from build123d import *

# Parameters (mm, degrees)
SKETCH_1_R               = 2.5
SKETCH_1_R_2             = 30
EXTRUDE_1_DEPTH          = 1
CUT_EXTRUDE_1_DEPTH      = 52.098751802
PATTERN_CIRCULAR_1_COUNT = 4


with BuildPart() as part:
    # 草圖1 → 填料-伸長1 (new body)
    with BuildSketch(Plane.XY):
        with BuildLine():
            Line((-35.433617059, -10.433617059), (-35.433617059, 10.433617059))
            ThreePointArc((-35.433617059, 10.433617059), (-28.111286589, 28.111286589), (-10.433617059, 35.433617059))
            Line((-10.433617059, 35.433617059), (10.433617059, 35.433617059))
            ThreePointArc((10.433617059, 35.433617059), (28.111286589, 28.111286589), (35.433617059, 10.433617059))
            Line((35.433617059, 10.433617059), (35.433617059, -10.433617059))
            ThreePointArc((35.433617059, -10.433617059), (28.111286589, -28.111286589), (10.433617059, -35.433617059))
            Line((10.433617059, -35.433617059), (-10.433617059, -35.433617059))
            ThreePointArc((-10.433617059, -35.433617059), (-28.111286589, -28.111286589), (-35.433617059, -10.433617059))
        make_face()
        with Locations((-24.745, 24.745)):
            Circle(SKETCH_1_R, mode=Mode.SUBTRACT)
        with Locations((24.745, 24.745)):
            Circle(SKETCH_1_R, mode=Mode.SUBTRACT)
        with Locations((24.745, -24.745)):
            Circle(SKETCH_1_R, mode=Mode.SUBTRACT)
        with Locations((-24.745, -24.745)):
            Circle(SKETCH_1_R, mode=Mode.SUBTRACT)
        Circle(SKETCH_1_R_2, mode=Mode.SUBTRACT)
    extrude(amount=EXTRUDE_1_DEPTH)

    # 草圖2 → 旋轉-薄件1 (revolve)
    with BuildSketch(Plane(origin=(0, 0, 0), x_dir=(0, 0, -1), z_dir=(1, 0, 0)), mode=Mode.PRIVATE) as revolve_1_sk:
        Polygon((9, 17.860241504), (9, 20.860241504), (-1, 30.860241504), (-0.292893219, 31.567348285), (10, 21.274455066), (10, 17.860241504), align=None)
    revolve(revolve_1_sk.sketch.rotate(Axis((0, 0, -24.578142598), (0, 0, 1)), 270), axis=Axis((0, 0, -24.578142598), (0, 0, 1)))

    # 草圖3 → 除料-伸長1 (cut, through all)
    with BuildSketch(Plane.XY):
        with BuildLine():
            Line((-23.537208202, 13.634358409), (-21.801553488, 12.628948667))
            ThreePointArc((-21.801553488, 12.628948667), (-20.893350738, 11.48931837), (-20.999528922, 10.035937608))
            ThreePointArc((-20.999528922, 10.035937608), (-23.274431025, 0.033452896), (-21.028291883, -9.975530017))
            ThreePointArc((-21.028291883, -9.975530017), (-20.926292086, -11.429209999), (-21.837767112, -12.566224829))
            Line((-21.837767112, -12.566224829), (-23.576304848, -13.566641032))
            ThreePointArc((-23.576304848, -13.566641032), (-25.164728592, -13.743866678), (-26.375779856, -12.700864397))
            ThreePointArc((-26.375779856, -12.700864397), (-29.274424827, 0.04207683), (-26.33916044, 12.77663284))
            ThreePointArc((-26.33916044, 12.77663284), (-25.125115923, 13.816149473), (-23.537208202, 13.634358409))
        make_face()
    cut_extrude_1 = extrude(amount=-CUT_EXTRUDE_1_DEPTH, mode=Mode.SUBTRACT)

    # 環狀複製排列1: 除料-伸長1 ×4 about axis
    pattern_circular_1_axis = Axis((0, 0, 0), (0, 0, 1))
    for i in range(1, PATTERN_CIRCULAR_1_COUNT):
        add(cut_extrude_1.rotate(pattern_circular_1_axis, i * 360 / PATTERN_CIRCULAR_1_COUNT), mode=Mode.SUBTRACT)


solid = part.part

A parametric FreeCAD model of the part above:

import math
import FreeCAD as App
import Part
import Sketcher
Q = App.Units.Quantity


def add_polygon(sketch, points):
    """Adds a closed chain of lines whose ends are joined by coincident constraints."""
    first, n = sketch.GeometryCount, len(points)
    for a, b in zip(points, points[1:] + points[:1]):
        sketch.addGeometry(Part.LineSegment(App.Vector(*a, 0), App.Vector(*b, 0)), False)
    for i in range(n):
        sketch.addConstraint(Sketcher.Constraint("Coincident", first + i, 2, first + (i + 1) % n, 1))

doc = App.newDocument("Part")
body = doc.addObject("PartDesign::Body", "Body")

# Sketch on XY plane
sketch1 = body.newObject("Sketcher::SketchObject", "Sketch")
sketch1.AttachmentSupport = (doc.getObject("XY_Plane"), [""])
sketch1.MapMode = "FlatFace"
sketch1.addGeometry(Part.LineSegment(App.Vector(-35.4, 10.4, 0), App.Vector(-35.4, -10.4, 0)), False)
sketch1.addGeometry(Part.ArcOfCircle(Part.Circle(App.Vector(-10.4, -10.4, 0), App.Vector(0, 0, 1), 25), math.radians(180), math.radians(270)), False)
sketch1.addGeometry(Part.LineSegment(App.Vector(-10.4, -35.4, 0), App.Vector(10.4, -35.4, 0)), False)
sketch1.addGeometry(Part.ArcOfCircle(Part.Circle(App.Vector(10.4, -10.4, 0), App.Vector(0, 0, 1), 25), math.radians(-90), math.radians(0)), False)
sketch1.addGeometry(Part.LineSegment(App.Vector(35.4, -10.4, 0), App.Vector(35.4, 10.4, 0)), False)
sketch1.addGeometry(Part.ArcOfCircle(Part.Circle(App.Vector(10.4, 10.4, 0), App.Vector(0, 0, 1), 25), math.radians(0), math.radians(90)), False)
sketch1.addGeometry(Part.LineSegment(App.Vector(10.4, 35.4, 0), App.Vector(-10.4, 35.4, 0)), False)
sketch1.addGeometry(Part.ArcOfCircle(Part.Circle(App.Vector(-10.4, 10.4, 0), App.Vector(0, 0, 1), 25), math.radians(90), math.radians(180)), False)
sketch1.addGeometry(Part.Circle(App.Vector(24.7, -24.7, 0), App.Vector(0, 0, 1), 2.5), False)
sketch1.addGeometry(Part.Circle(App.Vector(-24.7, -24.7, 0), App.Vector(0, 0, 1), 2.5), False)
sketch1.addGeometry(Part.Circle(App.Vector(24.7, 24.7, 0), App.Vector(0, 0, 1), 2.5), False)
sketch1.addGeometry(Part.Circle(App.Vector(0, 0, 0), App.Vector(0, 0, 1), 30), False)
sketch1.addGeometry(Part.Circle(App.Vector(-24.7, 24.7, 0), App.Vector(0, 0, 1), 2.5), False)
sketch1.addConstraint(Sketcher.Constraint("Tangent", 0, 2, 1, 1))
sketch1.addConstraint(Sketcher.Constraint("Tangent", 1, 2, 2, 1))
sketch1.addConstraint(Sketcher.Constraint("Tangent", 2, 2, 3, 1))
sketch1.addConstraint(Sketcher.Constraint("Tangent", 3, 2, 4, 1))
sketch1.addConstraint(Sketcher.Constraint("Tangent", 4, 2, 5, 1))
sketch1.addConstraint(Sketcher.Constraint("Tangent", 5, 2, 6, 1))
sketch1.addConstraint(Sketcher.Constraint("Tangent", 6, 2, 7, 1))
sketch1.addConstraint(Sketcher.Constraint("Tangent", 7, 2, 0, 1))
sketch1.addConstraint(Sketcher.Constraint("Vertical", 0))
sketch1.addConstraint(Sketcher.Constraint("Horizontal", 2))
sketch1.addConstraint(Sketcher.Constraint("Vertical", 4))
sketch1.addConstraint(Sketcher.Constraint("Horizontal", 6))
sketch1.addConstraint(Sketcher.Constraint("Coincident", 11, 3, -1, 1))
sketch1.addConstraint(Sketcher.Constraint("Equal", 1, 3))
sketch1.addConstraint(Sketcher.Constraint("Equal", 3, 5))
sketch1.addConstraint(Sketcher.Constraint("Equal", 5, 7))
sketch1.addConstraint(Sketcher.Constraint("Equal", 8, 9))
sketch1.addConstraint(Sketcher.Constraint("Equal", 9, 10))
sketch1.addConstraint(Sketcher.Constraint("Equal", 10, 12))
sketch1.addConstraint(Sketcher.Constraint("Symmetric", 1, 3, 5, 3, -1, 1))
sketch1.addConstraint(Sketcher.Constraint("Symmetric", 9, 3, 10, 3, -1, 1))
sketch1.addConstraint(Sketcher.Constraint("Symmetric", 8, 3, 12, 3, -1, 1))
sketch1.addConstraint(Sketcher.Constraint("Symmetric", 8, 3, 9, 3, -2))
sketch1.addConstraint(Sketcher.Constraint("Equal", 6, 0))
sketch1.addConstraint(Sketcher.Constraint("Diameter", 8, 5.0))
sketch1.addConstraint(Sketcher.Constraint("Diameter", 11, 60.0))
sketch1.addConstraint(Sketcher.Constraint("Radius", 1, 25.0))
sketch1.addConstraint(Sketcher.Constraint("DistanceX", 9, 3, 8, 3, 49.49))
sketch1.addConstraint(Sketcher.Constraint("DistanceY", 8, 3, 10, 3, 49.49))
sketch1.addConstraint(Sketcher.Constraint("DistanceX", 2, 1, 2, 2, 20.867234))
pad1 = body.newObject("PartDesign::Pad", "Pad")
pad1.Profile = sketch1
pad1.Length = 1

# Sketch on YZ plane
sketch2 = body.newObject("Sketcher::SketchObject", "Sketch001")
sketch2.AttachmentSupport = (doc.getObject("YZ_Plane"), [""])
sketch2.MapMode = "FlatFace"
add_polygon(sketch2, [(20.9, -9), (17.9, -9), (17.9, -10), (21.3, -10), (31.6, 0.3), (30.9, 1)])  # lines 0-5
sketch2.addConstraint(Sketcher.Constraint("Horizontal", 0))
sketch2.addConstraint(Sketcher.Constraint("Vertical", 1))
sketch2.addConstraint(Sketcher.Constraint("Horizontal", 2))
sketch2.addConstraint(Sketcher.Constraint("Perpendicular", 3, 4))
sketch2.addConstraint(Sketcher.Constraint("Perpendicular", 4, 5))
sketch2.addConstraint(Sketcher.Constraint("DistanceX", 0, 2, 0, 1, 3.0))
sketch2.addConstraint(Sketcher.Constraint("DistanceY", 1, 2, 1, 1, 1.0))
sketch2.addConstraint(Sketcher.Constraint("Angle", 3, Q("45 deg")))
sketch2.addConstraint(Sketcher.Constraint("Distance", 4, 1.0))
sketch2.addConstraint(Sketcher.Constraint("DistanceY", 0, 2, -1, 1, 9.0))
sketch2.addConstraint(Sketcher.Constraint("DistanceY", -1, 1, 4, 2, 1.0))
sketch2.addConstraint(Sketcher.Constraint("DistanceX", -1, 1, 0, 2, 17.860242))
revolution = body.newObject("PartDesign::Revolution", "Revolution")
revolution.Profile = sketch2
revolution.ReferenceAxis = (sketch2, ["V_Axis"])
revolution.Angle = 360

# Sketch on XY plane
sketch3 = body.newObject("Sketcher::SketchObject", "Sketch002")
sketch3.AttachmentSupport = (doc.getObject("XY_Plane"), [""])
sketch3.MapMode = "FlatFace"
sketch3.addGeometry(Part.LineSegment(App.Vector(-21.8, 12.6, 0), App.Vector(-23.5, 13.6, 0)), False)
sketch3.addGeometry(Part.ArcOfCircle(Part.Circle(App.Vector(-24.5, 11.9, 0), App.Vector(0, 0, 1), 2), math.radians(60), math.radians(154)), False)
sketch3.addGeometry(Part.ArcOfCircle(Part.Circle(App.Vector(0, 0, 0), App.Vector(0, 0, 1), 29.3), math.radians(154), math.radians(206)), False)
sketch3.addGeometry(Part.ArcOfCircle(Part.Circle(App.Vector(-24.6, -11.8, 0), App.Vector(0, 0, 1), 2), math.radians(-154), math.radians(-60)), False)
sketch3.addGeometry(Part.LineSegment(App.Vector(-23.6, -13.6, 0), App.Vector(-21.8, -12.6, 0)), False)
sketch3.addGeometry(Part.ArcOfCircle(Part.Circle(App.Vector(-22.8, -10.8, 0), App.Vector(0, 0, 1), 2), math.radians(-60), math.radians(25)), False)
sketch3.addGeometry(Part.ArcOfCircle(Part.Circle(App.Vector(0, 0, 0), App.Vector(0, 0, 1), 23.3), math.radians(154), math.radians(205)), False)
sketch3.addGeometry(Part.ArcOfCircle(Part.Circle(App.Vector(-22.8, 10.9, 0), App.Vector(0, 0, 1), 2), math.radians(-26), math.radians(60)), False)
sketch3.addConstraint(Sketcher.Constraint("Tangent", 0, 2, 1, 1))
sketch3.addConstraint(Sketcher.Constraint("Tangent", 1, 2, 2, 1))
sketch3.addConstraint(Sketcher.Constraint("Tangent", 2, 2, 3, 1))
sketch3.addConstraint(Sketcher.Constraint("Tangent", 3, 2, 4, 1))
sketch3.addConstraint(Sketcher.Constraint("Tangent", 4, 2, 5, 1))
sketch3.addConstraint(Sketcher.Constraint("Tangent", 5, 2, 6, 2))
sketch3.addConstraint(Sketcher.Constraint("Tangent", 6, 1, 7, 1))
sketch3.addConstraint(Sketcher.Constraint("Tangent", 7, 2, 0, 1))
sketch3.addConstraint(Sketcher.Constraint("Coincident", 2, 3, -1, 1))
sketch3.addConstraint(Sketcher.Constraint("Coincident", 6, 3, -1, 1))
sketch3.addConstraint(Sketcher.Constraint("Equal", 1, 3))
sketch3.addConstraint(Sketcher.Constraint("Equal", 3, 5))
sketch3.addConstraint(Sketcher.Constraint("Equal", 5, 7))
sketch3.addConstraint(Sketcher.Constraint("Equal", 0, 4))
sketch3.addConstraint(Sketcher.Constraint("Radius", 1, 2.0))
sketch3.addConstraint(Sketcher.Constraint("Radius", 2, 29.274455))
sketch3.addConstraint(Sketcher.Constraint("Radius", 6, 23.274455))
sketch3.addConstraint(Sketcher.Constraint("DistanceY", 3, 3, 1, 3, 23.736901))
sketch3.addConstraint(Sketcher.Constraint("DistanceY", 2, 2, 7, 3, 23.599201))
sketch3.addConstraint(Sketcher.Constraint("DistanceY", 1, 3, 7, 2, 0.725202))
pocket1 = body.newObject("PartDesign::Pocket", "Pocket")
pocket1.Profile = sketch3
pocket1.Type = "ThroughAll"
doc.recompute()

polarpattern = body.newObject("PartDesign::PolarPattern", "PolarPattern")
polarpattern.Originals = [pocket1]
polarpattern.Axis = (doc.getObject("Z_Axis"), [""])
polarpattern.Angle = 360
polarpattern.Occurrences = 4
body.Tip = polarpattern

doc.recompute()
